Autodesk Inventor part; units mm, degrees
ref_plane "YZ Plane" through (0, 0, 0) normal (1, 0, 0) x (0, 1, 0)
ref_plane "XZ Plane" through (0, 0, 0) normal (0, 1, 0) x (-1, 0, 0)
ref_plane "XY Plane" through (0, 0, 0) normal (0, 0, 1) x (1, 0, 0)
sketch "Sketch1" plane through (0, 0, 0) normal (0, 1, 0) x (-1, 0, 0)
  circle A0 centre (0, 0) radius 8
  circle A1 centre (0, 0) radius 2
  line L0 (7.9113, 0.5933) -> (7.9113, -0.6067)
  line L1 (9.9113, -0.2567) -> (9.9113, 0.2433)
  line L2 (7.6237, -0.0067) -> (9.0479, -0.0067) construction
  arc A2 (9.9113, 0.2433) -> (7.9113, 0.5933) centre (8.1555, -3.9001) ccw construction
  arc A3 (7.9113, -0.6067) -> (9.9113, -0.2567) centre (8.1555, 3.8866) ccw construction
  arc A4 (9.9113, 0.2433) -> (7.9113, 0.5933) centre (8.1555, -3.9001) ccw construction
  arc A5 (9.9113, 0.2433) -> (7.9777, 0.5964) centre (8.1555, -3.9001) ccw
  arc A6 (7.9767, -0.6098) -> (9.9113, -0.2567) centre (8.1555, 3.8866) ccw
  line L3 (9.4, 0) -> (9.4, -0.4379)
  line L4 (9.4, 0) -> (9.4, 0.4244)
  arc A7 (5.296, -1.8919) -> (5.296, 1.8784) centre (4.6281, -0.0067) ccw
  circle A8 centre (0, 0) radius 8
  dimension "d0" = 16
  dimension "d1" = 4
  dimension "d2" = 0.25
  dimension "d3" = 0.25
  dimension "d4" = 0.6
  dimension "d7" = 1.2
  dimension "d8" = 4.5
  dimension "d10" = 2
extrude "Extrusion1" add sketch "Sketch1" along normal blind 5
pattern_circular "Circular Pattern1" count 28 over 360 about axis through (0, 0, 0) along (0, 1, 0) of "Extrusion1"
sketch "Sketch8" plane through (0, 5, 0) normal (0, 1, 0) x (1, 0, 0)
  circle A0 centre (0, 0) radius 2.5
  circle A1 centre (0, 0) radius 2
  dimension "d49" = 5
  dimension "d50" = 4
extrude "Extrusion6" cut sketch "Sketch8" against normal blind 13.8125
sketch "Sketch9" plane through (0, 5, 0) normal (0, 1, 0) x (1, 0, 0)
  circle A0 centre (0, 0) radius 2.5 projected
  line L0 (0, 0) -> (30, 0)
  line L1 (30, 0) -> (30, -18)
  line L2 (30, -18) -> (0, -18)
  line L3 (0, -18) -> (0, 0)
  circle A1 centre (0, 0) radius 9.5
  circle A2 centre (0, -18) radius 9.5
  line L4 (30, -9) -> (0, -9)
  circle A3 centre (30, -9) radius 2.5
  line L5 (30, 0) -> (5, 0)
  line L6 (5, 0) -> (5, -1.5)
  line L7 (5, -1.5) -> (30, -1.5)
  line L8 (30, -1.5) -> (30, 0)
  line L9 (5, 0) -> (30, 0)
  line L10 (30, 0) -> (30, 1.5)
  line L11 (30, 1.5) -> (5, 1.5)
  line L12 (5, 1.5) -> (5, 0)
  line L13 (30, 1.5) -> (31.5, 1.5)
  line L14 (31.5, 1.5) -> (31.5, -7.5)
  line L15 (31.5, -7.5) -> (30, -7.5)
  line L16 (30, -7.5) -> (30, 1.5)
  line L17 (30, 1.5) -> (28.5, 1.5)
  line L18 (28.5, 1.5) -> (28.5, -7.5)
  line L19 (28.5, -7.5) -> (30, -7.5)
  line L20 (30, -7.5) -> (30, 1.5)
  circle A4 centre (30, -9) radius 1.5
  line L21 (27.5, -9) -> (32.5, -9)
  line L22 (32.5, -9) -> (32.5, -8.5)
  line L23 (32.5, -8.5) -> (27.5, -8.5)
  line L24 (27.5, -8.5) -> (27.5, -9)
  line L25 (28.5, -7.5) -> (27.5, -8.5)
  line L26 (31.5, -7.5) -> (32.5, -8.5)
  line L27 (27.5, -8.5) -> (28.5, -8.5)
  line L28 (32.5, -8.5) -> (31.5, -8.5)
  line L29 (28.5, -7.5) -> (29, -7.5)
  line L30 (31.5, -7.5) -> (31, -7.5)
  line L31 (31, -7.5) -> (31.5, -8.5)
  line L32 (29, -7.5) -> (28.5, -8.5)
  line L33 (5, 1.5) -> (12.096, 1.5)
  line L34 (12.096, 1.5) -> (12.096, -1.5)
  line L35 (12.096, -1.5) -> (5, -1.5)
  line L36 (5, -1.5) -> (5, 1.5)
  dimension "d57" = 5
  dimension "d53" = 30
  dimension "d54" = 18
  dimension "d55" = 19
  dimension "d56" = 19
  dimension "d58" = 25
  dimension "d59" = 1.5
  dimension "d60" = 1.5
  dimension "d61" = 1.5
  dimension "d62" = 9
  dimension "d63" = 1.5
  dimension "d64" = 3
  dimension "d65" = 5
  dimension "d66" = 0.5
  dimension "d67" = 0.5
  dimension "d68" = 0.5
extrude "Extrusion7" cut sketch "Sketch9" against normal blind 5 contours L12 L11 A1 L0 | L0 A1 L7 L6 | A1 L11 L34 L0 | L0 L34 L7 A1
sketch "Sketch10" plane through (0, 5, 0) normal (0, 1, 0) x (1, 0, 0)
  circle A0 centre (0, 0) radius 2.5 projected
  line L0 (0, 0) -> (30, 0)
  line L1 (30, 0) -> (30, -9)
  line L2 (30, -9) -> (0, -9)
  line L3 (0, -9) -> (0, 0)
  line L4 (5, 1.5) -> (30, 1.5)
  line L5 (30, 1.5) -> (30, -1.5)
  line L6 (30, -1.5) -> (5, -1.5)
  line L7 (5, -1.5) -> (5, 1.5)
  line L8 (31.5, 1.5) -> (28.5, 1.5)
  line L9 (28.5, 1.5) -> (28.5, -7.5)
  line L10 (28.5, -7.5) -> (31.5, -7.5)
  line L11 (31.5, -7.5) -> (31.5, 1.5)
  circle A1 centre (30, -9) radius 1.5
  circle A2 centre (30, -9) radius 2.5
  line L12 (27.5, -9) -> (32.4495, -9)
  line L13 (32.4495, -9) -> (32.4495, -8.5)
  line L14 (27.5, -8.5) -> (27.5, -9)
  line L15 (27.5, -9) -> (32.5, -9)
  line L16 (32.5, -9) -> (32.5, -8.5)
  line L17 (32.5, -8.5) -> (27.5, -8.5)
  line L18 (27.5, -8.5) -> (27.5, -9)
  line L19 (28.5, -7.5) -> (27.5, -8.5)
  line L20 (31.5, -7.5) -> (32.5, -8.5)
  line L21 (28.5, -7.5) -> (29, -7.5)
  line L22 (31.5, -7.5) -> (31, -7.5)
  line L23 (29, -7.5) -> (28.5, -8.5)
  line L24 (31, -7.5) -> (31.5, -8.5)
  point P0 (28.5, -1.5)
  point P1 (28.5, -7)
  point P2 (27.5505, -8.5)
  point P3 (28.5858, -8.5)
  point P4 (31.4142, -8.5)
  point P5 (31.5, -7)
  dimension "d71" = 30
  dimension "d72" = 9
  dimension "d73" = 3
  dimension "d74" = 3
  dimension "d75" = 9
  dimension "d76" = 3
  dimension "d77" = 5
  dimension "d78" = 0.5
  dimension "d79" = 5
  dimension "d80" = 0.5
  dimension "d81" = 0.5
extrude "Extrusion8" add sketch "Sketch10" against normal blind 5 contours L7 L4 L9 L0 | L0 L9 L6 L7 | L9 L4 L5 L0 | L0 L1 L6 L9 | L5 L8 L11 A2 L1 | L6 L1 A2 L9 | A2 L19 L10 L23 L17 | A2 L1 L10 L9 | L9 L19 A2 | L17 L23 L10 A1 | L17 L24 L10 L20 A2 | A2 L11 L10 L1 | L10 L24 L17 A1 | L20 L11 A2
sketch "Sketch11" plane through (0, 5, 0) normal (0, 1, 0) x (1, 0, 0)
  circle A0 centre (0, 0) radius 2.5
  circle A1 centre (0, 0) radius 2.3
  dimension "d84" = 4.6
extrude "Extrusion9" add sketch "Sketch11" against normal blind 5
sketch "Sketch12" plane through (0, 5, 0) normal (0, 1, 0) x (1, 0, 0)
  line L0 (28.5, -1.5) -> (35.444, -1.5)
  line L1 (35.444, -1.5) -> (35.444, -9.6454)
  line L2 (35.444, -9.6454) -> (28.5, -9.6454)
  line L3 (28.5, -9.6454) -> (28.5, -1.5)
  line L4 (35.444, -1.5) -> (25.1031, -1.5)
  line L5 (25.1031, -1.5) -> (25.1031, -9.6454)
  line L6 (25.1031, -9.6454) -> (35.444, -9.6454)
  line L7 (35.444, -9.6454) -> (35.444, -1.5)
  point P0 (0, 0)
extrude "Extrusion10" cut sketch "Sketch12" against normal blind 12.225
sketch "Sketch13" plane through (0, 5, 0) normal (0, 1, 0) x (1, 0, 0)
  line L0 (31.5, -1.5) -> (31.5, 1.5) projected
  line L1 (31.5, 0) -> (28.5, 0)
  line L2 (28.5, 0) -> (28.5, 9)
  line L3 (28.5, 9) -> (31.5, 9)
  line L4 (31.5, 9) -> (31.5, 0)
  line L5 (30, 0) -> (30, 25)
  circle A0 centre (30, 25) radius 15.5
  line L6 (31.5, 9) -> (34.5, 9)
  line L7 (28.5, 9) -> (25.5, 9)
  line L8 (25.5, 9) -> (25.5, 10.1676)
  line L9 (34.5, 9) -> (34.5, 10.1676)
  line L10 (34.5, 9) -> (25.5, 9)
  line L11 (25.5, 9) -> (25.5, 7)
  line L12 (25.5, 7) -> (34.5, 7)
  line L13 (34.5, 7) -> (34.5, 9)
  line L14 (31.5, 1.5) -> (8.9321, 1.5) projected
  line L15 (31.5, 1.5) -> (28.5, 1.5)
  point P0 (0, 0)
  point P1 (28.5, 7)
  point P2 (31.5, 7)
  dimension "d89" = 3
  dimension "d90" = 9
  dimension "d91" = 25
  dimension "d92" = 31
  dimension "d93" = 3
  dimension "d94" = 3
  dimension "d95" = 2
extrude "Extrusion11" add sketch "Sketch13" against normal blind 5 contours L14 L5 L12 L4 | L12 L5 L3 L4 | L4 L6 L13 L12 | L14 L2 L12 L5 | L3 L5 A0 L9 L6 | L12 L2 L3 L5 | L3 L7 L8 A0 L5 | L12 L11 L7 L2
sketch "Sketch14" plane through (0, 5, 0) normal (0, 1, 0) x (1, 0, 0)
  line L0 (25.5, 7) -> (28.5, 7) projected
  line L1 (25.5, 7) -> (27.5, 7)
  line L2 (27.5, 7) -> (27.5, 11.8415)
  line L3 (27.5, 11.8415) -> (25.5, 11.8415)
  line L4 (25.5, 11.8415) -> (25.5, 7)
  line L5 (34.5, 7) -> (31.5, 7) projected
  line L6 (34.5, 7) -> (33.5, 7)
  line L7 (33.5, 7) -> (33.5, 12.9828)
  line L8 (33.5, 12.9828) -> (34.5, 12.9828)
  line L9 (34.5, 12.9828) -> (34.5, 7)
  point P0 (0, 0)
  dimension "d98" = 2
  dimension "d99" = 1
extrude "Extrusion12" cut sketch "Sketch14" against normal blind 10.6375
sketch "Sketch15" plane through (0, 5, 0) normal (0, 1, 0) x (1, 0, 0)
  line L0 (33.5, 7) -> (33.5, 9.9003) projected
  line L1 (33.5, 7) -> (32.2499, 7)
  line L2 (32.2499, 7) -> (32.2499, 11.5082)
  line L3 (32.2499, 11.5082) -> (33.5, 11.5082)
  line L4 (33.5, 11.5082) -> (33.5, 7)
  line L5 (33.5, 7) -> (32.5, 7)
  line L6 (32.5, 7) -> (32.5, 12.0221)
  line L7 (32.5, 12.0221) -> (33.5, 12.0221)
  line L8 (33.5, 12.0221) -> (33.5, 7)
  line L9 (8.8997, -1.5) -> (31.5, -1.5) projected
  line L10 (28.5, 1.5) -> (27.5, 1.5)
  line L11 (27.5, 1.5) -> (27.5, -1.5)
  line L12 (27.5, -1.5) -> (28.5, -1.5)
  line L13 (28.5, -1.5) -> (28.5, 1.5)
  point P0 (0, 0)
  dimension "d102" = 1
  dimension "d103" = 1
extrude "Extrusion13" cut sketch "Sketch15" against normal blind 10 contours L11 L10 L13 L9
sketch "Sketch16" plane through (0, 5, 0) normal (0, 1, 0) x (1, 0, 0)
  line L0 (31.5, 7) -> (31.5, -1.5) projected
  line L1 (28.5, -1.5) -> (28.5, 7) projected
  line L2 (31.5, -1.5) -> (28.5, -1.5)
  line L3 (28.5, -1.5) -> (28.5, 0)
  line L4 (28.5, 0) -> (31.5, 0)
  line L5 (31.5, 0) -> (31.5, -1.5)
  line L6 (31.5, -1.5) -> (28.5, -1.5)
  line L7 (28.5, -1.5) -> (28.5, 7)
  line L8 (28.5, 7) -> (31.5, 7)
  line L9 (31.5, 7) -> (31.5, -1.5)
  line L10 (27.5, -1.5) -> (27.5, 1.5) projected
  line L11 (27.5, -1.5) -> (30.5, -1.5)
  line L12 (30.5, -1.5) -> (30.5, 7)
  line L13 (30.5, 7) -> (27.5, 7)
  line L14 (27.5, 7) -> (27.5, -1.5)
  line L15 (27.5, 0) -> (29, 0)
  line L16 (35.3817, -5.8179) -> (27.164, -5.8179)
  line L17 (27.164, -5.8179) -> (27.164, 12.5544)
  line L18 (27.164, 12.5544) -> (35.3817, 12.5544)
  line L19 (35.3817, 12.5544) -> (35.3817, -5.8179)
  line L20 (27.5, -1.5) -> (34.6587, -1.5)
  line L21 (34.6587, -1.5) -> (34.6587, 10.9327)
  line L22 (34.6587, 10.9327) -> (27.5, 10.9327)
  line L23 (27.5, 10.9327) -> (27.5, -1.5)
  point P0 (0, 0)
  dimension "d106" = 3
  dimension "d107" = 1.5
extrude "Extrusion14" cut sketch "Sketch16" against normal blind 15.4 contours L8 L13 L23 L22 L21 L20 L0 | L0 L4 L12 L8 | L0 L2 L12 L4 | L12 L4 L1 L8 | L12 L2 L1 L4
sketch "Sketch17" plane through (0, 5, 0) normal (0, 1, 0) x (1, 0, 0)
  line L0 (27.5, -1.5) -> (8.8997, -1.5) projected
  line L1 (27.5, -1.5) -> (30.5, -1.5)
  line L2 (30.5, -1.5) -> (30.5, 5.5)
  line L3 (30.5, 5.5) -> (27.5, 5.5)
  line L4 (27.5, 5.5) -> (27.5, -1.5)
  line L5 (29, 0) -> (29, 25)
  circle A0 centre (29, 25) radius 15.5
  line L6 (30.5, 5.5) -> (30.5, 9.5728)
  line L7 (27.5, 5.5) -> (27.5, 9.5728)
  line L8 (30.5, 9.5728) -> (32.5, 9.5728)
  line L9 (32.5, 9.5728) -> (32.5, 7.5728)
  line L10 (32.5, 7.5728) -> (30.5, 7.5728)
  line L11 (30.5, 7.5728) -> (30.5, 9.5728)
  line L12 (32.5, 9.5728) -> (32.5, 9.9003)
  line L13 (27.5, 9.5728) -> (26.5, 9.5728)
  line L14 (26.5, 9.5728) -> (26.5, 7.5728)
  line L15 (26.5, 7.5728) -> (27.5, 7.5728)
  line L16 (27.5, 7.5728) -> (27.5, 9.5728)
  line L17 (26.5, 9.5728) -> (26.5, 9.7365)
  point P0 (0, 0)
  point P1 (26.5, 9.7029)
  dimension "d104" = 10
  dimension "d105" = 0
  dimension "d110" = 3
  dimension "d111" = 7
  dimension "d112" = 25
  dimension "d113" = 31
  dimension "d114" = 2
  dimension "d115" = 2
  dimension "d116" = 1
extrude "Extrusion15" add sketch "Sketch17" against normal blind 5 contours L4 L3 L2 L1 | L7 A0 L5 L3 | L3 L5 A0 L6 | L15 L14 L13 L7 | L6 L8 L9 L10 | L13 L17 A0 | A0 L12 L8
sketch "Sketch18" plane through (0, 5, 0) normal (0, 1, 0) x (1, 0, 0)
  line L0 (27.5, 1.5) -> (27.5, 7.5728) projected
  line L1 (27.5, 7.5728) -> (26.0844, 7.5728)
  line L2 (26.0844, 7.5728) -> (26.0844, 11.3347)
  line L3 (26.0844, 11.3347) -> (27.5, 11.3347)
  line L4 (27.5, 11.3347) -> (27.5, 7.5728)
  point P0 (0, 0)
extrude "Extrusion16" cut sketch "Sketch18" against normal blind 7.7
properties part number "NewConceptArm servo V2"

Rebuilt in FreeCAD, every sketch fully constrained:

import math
import FreeCAD as App
import Part
import Sketcher
from FreeCAD import Vector


def add_polygon(sketch, points):
    """Adds a closed chain of lines whose ends are joined by coincident constraints."""
    first, n = sketch.GeometryCount, len(points)
    for a, b in zip(points, points[1:] + points[:1]):
        sketch.addGeometry(Part.LineSegment(App.Vector(*a, 0), App.Vector(*b, 0)), False)
    for i in range(n):
        sketch.addConstraint(Sketcher.Constraint("Coincident", first + i, 2, first + (i + 1) % n, 1))

doc = App.newDocument("Part")
body = doc.addObject("PartDesign::Body", "Body")
body.AllowCompound = True

sketch1 = body.newObject("Sketcher::SketchObject", "Sketch")
sketch1.AttachmentSupport = (doc.getObject("XZ_Plane"), [""])
sketch1.MapMode = "FlatFace"
sketch1.addGeometry([
    Part.ArcOfCircle(Part.Circle(Vector(0, 0, 0), Vector(0, 0, 1), 8), math.radians(-176), math.radians(176)),
    Part.ArcOfCircle(Part.Circle(Vector(-8.2, 3.9, 0), Vector(0, 0, 1), 4.5), math.radians(-113), math.radians(-88)),
    Part.LineSegment(Vector(-9.9, -0.3, 0), Vector(-9.9, 0.2, 0)),
    Part.ArcOfCircle(Part.Circle(Vector(-8.2, -3.9, 0), Vector(0, 0, 1), 4.5), math.radians(88), math.radians(113)),
    Part.Circle(Vector(0, 0, 0), Vector(0, 0, 1), 2),
], False)
sketch1.addConstraint([
    Sketcher.Constraint("Coincident", 0, 1, 1, 2),
    Sketcher.Constraint("Coincident", 1, 1, 2, 1),
    Sketcher.Constraint("Coincident", 2, 2, 3, 2),
    Sketcher.Constraint("Coincident", 3, 1, 0, 2),
    Sketcher.Constraint("Vertical", 2),
    Sketcher.Constraint("Coincident", 0, 3, -1, 1),
    Sketcher.Constraint("Coincident", 4, 3, -1, 1),
    Sketcher.Constraint("Diameter", 4, 4.0),
    Sketcher.Constraint("Radius", 0, 8.0),
    Sketcher.Constraint("Radius", 1, 4.5),
    Sketcher.Constraint("DistanceY", 2, 1, 2, 2, 0.5),
    Sketcher.Constraint("Radius", 3, 4.499),
    Sketcher.Constraint("DistanceY", 3, 3, -1, 1, 3.899),
    Sketcher.Constraint("DistanceX", 3, 3, 0, 1, 0.179),
    Sketcher.Constraint("DistanceY", 0, 1, 2, 2, 0.853),
    Sketcher.Constraint("DistanceX", 3, 1, 0, 1, 0.001),
])
pad1 = body.newObject("PartDesign::Pad", "Pad")
pad1.Profile = sketch1
pad1.Length = 5
pad1.Reversed = True
doc.recompute()

polarpattern = body.newObject("PartDesign::PolarPattern", "PolarPattern")
polarpattern.Originals = [pad1]
polarpattern.Axis = (doc.getObject("Y_Axis"), [""])
polarpattern.Angle = 360
polarpattern.Occurrences = 28
body.Tip = polarpattern

sketch2 = body.newObject("Sketcher::SketchObject", "Sketch001")
sketch2.AttachmentSupport = (doc.getObject("XZ_Plane"), [""])
sketch2.MapMode = "FlatFace"
sketch2.AttachmentOffset = App.Placement(Vector(0, 0, -5), App.Rotation())
sketch2.addGeometry([
    Part.Circle(Vector(0, 0, 0), Vector(0, 0, 1), 2.5),
    Part.Circle(Vector(0, 0, 0), Vector(0, 0, 1), 2),
], False)
sketch2.addConstraint([
    Sketcher.Constraint("Coincident", 0, 3, -1, 1),
    Sketcher.Constraint("Coincident", 1, 3, -1, 1),
    Sketcher.Constraint("Diameter", 0, 5.0),
    Sketcher.Constraint("Diameter", 1, 4.0),
])
pocket1 = body.newObject("PartDesign::Pocket", "Pocket")
pocket1.Profile = sketch2
pocket1.Length = 13.8125
pocket1.Reversed = True

sketch3 = body.newObject("Sketcher::SketchObject", "Sketch002")
sketch3.AttachmentSupport = (doc.getObject("XZ_Plane"), [""])
sketch3.MapMode = "FlatFace"
sketch3.AttachmentOffset = App.Placement(Vector(0, 0, -5), App.Rotation())
add_polygon(sketch3, [(5, -1.5), (5, 1.5), (12.1, 1.5), (12.1, -1.5)])
sketch3.addConstraint([
    Sketcher.Constraint("Vertical", 0),
    Sketcher.Constraint("Horizontal", 1),
    Sketcher.Constraint("Vertical", 2),
    Sketcher.Constraint("Horizontal", 3),
    Sketcher.Constraint("DistanceY", 0, 1, 0, 2, 3.0),
    Sketcher.Constraint("DistanceX", -1, 1, 0, 2, 5.0),
    Sketcher.Constraint("DistanceY", -1, 1, 0, 2, 1.5),
    Sketcher.Constraint("DistanceX", 1, 1, 1, 2, 7.096),
])
pocket2 = body.newObject("PartDesign::Pocket", "Pocket001")
pocket2.Profile = sketch3
pocket2.Length = 5
pocket2.Reversed = True

sketch4 = body.newObject("Sketcher::SketchObject", "Sketch003")
sketch4.AttachmentSupport = (doc.getObject("XZ_Plane"), [""])
sketch4.MapMode = "FlatFace"
sketch4.AttachmentOffset = App.Placement(Vector(0, 0, -5), App.Rotation())
sketch4.addGeometry([
    Part.LineSegment(Vector(5, -1.5, 0), Vector(5, 1.5, 0)),
    Part.LineSegment(Vector(5, 1.5, 0), Vector(28.5, 1.5, 0)),
    Part.LineSegment(Vector(28.5, 1.5, 0), Vector(28.5, 7, 0)),
    Part.ArcOfCircle(Part.Circle(Vector(30, 9, 0), Vector(0, 0, 1), 2.5), math.radians(-168), math.radians(-127)),
    Part.LineSegment(Vector(27.6, 8.5, 0), Vector(28.6, 8.5, 0)),
    Part.ArcOfCircle(Part.Circle(Vector(30, 9, 0), Vector(0, 0, 1), 1.5), math.radians(-161), math.radians(-19)),
    Part.LineSegment(Vector(31.4, 8.5, 0), Vector(32.4, 8.5, 0)),
    Part.ArcOfCircle(Part.Circle(Vector(30, 9, 0), Vector(0, 0, 1), 2.5), math.radians(-53), math.radians(-12)),
    Part.LineSegment(Vector(31.5, 7, 0), Vector(31.5, -1.5, 0)),
    Part.LineSegment(Vector(31.5, -1.5, 0), Vector(5, -1.5, 0)),
], False)
sketch4.addConstraint([
    Sketcher.Constraint("Coincident", 0, 2, 1, 1),
    Sketcher.Constraint("Coincident", 1, 2, 2, 1),
    Sketcher.Constraint("Coincident", 2, 2, 3, 2),
    Sketcher.Constraint("Coincident", 3, 1, 4, 1),
    Sketcher.Constraint("Coincident", 4, 2, 5, 1),
    Sketcher.Constraint("Coincident", 5, 2, 6, 1),
    Sketcher.Constraint("Coincident", 6, 2, 7, 2),
    Sketcher.Constraint("Coincident", 7, 1, 8, 1),
    Sketcher.Constraint("Coincident", 8, 2, 9, 1),
    Sketcher.Constraint("Coincident", 9, 2, 0, 1),
    Sketcher.Constraint("Vertical", 0),
    Sketcher.Constraint("Horizontal", 1),
    Sketcher.Constraint("Vertical", 2),
    Sketcher.Constraint("Horizontal", 4),
    Sketcher.Constraint("Horizontal", 6),
    Sketcher.Constraint("Vertical", 8),
    Sketcher.Constraint("Horizontal", 9),
    Sketcher.Constraint("Coincident", 5, 3, 3, 3),
    Sketcher.Constraint("Coincident", 7, 3, 3, 3),
    Sketcher.Constraint("Equal", 3, 7),
    Sketcher.Constraint("Horizontal", 4, 2, 5, 2),
    Sketcher.Constraint("Horizontal", 2, 2, 7, 1),
    Sketcher.Constraint("Radius", 3, 2.5),
    Sketcher.Constraint("Radius", 5, 1.5),
    Sketcher.Constraint("DistanceY", 0, 1, 0, 2, 3.0),
    Sketcher.Constraint("DistanceX", -1, 1, 3, 3, 30.0),
    Sketcher.Constraint("DistanceY", -1, 1, 3, 3, 9.0),
    Sketcher.Constraint("DistanceX", -1, 1, 0, 2, 5.0),
    Sketcher.Constraint("DistanceX", 1, 2, 8, 2, 3.0),
    Sketcher.Constraint("DistanceY", 3, 1, 3, 3, 0.5),
    Sketcher.Constraint("DistanceY", 2, 1, 2, 2, 5.5),
])
pad2 = body.newObject("PartDesign::Pad", "Pad001")
pad2.Profile = sketch4
pad2.Length = 5

sketch5 = body.newObject("Sketcher::SketchObject", "Sketch004")
sketch5.AttachmentSupport = (doc.getObject("XZ_Plane"), [""])
sketch5.MapMode = "FlatFace"
sketch5.AttachmentOffset = App.Placement(Vector(0, 0, -5), App.Rotation())
sketch5.addGeometry([
    Part.Circle(Vector(0, 0, 0), Vector(0, 0, 1), 2.5),
    Part.Circle(Vector(0, 0, 0), Vector(0, 0, 1), 2.3),
], False)
sketch5.addConstraint([
    Sketcher.Constraint("Coincident", 0, 3, -1, 1),
    Sketcher.Constraint("Coincident", 1, 3, -1, 1),
    Sketcher.Constraint("Diameter", 1, 4.6),
    Sketcher.Constraint("Diameter", 0, 5.0),
])
pad3 = body.newObject("PartDesign::Pad", "Pad002")
pad3.Profile = sketch5
pad3.Length = 5

sketch6 = body.newObject("Sketcher::SketchObject", "Sketch005")
sketch6.AttachmentSupport = (doc.getObject("XZ_Plane"), [""])
sketch6.MapMode = "FlatFace"
sketch6.AttachmentOffset = App.Placement(Vector(0, 0, -5), App.Rotation())
add_polygon(sketch6, [(35, 2), (25, 2), (25, 10), (35, 10)])
sketch6.addConstraint([
    Sketcher.Constraint("Horizontal", 0),
    Sketcher.Constraint("Vertical", 1),
    Sketcher.Constraint("Horizontal", 2),
    Sketcher.Constraint("Vertical", 3),
    Sketcher.Constraint("DistanceY", -1, 1, 0, 2, 1.5),
    Sketcher.Constraint("DistanceX", 0, 2, 0, 1, 10.341),
    Sketcher.Constraint("DistanceY", 1, 1, 1, 2, 8.1454),
    Sketcher.Constraint("DistanceX", -1, 1, 0, 2, 25.103),
])
pocket3 = body.newObject("PartDesign::Pocket", "Pocket002")
pocket3.Profile = sketch6
pocket3.Length = 12.225
pocket3.Reversed = True

sketch7 = body.newObject("Sketcher::SketchObject", "Sketch006")
sketch7.AttachmentSupport = (doc.getObject("XZ_Plane"), [""])
sketch7.MapMode = "FlatFace"
sketch7.AttachmentOffset = App.Placement(Vector(0, 0, -5), App.Rotation())
sketch7.addGeometry([
    Part.LineSegment(Vector(31.5, -1.5, 0), Vector(31.5, -7, 0)),
    Part.LineSegment(Vector(31.5, -7, 0), Vector(34.5, -7, 0)),
    Part.LineSegment(Vector(34.5, -7, 0), Vector(34.5, -10.2, 0)),
    Part.ArcOfCircle(Part.Circle(Vector(30, -25, 0), Vector(0, 0, 1), 15.5), math.radians(73), math.radians(107)),
    Part.LineSegment(Vector(25.5, -10.2, 0), Vector(25.5, -7, 0)),
    Part.LineSegment(Vector(25.5, -7, 0), Vector(28.5, -7, 0)),
    Part.LineSegment(Vector(28.5, -7, 0), Vector(28.5, -1.5, 0)),
    Part.LineSegment(Vector(28.5, -1.5, 0), Vector(31.5, -1.5, 0)),
], False)
sketch7.addConstraint([
    Sketcher.Constraint("Coincident", 0, 2, 1, 1),
    Sketcher.Constraint("Coincident", 1, 2, 2, 1),
    Sketcher.Constraint("Coincident", 2, 2, 3, 1),
    Sketcher.Constraint("Coincident", 3, 2, 4, 1),
    Sketcher.Constraint("Coincident", 4, 2, 5, 1),
    Sketcher.Constraint("Coincident", 5, 2, 6, 1),
    Sketcher.Constraint("Coincident", 6, 2, 7, 1),
    Sketcher.Constraint("Coincident", 7, 2, 0, 1),
    Sketcher.Constraint("Vertical", 0),
    Sketcher.Constraint("Horizontal", 1),
    Sketcher.Constraint("Vertical", 2),
    Sketcher.Constraint("Vertical", 4),
    Sketcher.Constraint("Horizontal", 5),
    Sketcher.Constraint("Vertical", 6),
    Sketcher.Constraint("Horizontal", 7),
    Sketcher.Constraint("Horizontal", 2, 2, 3, 2),
    Sketcher.Constraint("Horizontal", 1, 2, 4, 2),
    Sketcher.Constraint("Equal", 1, 5),
    Sketcher.Constraint("Equal", 5, 7),
    Sketcher.Constraint("Radius", 3, 15.5),
    Sketcher.Constraint("DistanceX", 1, 1, 1, 2, 3.0),
    Sketcher.Constraint("DistanceY", 3, 3, -1, 1, 25.0),
    Sketcher.Constraint("DistanceY", 0, 2, 0, 1, 5.5),
    Sketcher.Constraint("DistanceX", -1, 1, 3, 3, 30.0),
    Sketcher.Constraint("DistanceY", 0, 2, -1, 1, 7.0),
])
pad4 = body.newObject("PartDesign::Pad", "Pad003")
pad4.Profile = sketch7
pad4.Length = 5

sketch8 = body.newObject("Sketcher::SketchObject", "Sketch007")
sketch8.AttachmentSupport = (doc.getObject("XZ_Plane"), [""])
sketch8.MapMode = "FlatFace"
sketch8.AttachmentOffset = App.Placement(Vector(0, 0, -5), App.Rotation())
add_polygon(sketch8, [(25.5, -11.8), (25.5, -7), (27.5, -7), (27.5, -11.8)])
add_polygon(sketch8, [(33.5, -7), (34.5, -7), (34.5, -13), (33.5, -13)])
sketch8.addConstraint([
    Sketcher.Constraint("Vertical", 0),
    Sketcher.Constraint("Horizontal", 1),
    Sketcher.Constraint("Vertical", 2),
    Sketcher.Constraint("Horizontal", 3),
    Sketcher.Constraint("Horizontal", 4),
    Sketcher.Constraint("Vertical", 5),
    Sketcher.Constraint("Horizontal", 6),
    Sketcher.Constraint("Vertical", 7),
    Sketcher.Constraint("Horizontal", 1, 2, 4, 2),
    Sketcher.Constraint("DistanceX", 1, 1, 1, 2, 2.0),
    Sketcher.Constraint("DistanceX", 4, 1, 4, 2, 1.0),
    Sketcher.Constraint("DistanceY", 0, 2, -1, 1, 7.0),
    Sketcher.Constraint("DistanceX", 1, 2, 4, 2, 7.0),
    Sketcher.Constraint("DistanceX", -1, 1, 0, 2, 25.5),
    Sketcher.Constraint("DistanceY", 0, 1, 0, 2, 4.8415),
    Sketcher.Constraint("DistanceY", 5, 2, 5, 1, 5.9828),
])
pocket4 = body.newObject("PartDesign::Pocket", "Pocket003")
pocket4.Profile = sketch8
pocket4.Length = 10.6375
pocket4.Reversed = True

sketch9 = body.newObject("Sketcher::SketchObject", "Sketch008")
sketch9.AttachmentSupport = (doc.getObject("XZ_Plane"), [""])
sketch9.MapMode = "FlatFace"
sketch9.AttachmentOffset = App.Placement(Vector(0, 0, -5), App.Rotation())
add_polygon(sketch9, [(27.5, -1.5), (27.5, 1.5), (28.5, 1.5), (28.5, -1.5)])
sketch9.addConstraint([
    Sketcher.Constraint("Vertical", 0),
    Sketcher.Constraint("Horizontal", 1),
    Sketcher.Constraint("Vertical", 2),
    Sketcher.Constraint("Horizontal", 3),
    Sketcher.Constraint("DistanceX", 1, 1, 1, 2, 1.0),
    Sketcher.Constraint("DistanceY", 0, 1, 0, 2, 3.0),
    Sketcher.Constraint("DistanceX", -1, 1, 0, 2, 27.5),
    Sketcher.Constraint("DistanceY", -1, 1, 0, 2, 1.5),
])
pocket5 = body.newObject("PartDesign::Pocket", "Pocket004")
pocket5.Profile = sketch9
pocket5.Length = 10
pocket5.Reversed = True

sketch10 = body.newObject("Sketcher::SketchObject", "Sketch009")
sketch10.AttachmentSupport = (doc.getObject("XZ_Plane"), [""])
sketch10.MapMode = "FlatFace"
sketch10.AttachmentOffset = App.Placement(Vector(0, 0, -5), App.Rotation())
add_polygon(sketch10, [(27.5, -7), (28.5, -7), (28.5, 1.5), (34.7, 1.5), (34.7, -10.9), (27.5, -10.9)])
sketch10.addConstraint([
    Sketcher.Constraint("Horizontal", 0),
    Sketcher.Constraint("Vertical", 1),
    Sketcher.Constraint("Horizontal", 2),
    Sketcher.Constraint("Vertical", 3),
    Sketcher.Constraint("Horizontal", 4),
    Sketcher.Constraint("Vertical", 5),
    Sketcher.Constraint("DistanceY", -1, 1, 1, 2, 1.5),
    Sketcher.Constraint("DistanceX", 0, 1, 0, 2, 1.0),
    Sketcher.Constraint("DistanceY", 1, 1, 1, 2, 8.5),
    Sketcher.Constraint("DistanceX", -1, 1, 0, 2, 28.5),
    Sketcher.Constraint("DistanceX", 2, 1, 2, 2, 6.1587),
    Sketcher.Constraint("DistanceY", 3, 2, 3, 1, 12.4327),
])
pocket6 = body.newObject("PartDesign::Pocket", "Pocket005")
pocket6.Profile = sketch10
pocket6.Length = 15.4
pocket6.Reversed = True

sketch11 = body.newObject("Sketcher::SketchObject", "Sketch010")
sketch11.AttachmentSupport = (doc.getObject("XZ_Plane"), [""])
sketch11.MapMode = "FlatFace"
sketch11.AttachmentOffset = App.Placement(Vector(0, 0, -5), App.Rotation())
sketch11.addGeometry([
    Part.LineSegment(Vector(27.5, 1.5, 0), Vector(30.5, 1.5, 0)),
    Part.LineSegment(Vector(30.5, 1.5, 0), Vector(30.5, -7.6, 0)),
    Part.LineSegment(Vector(30.5, -7.6, 0), Vector(32.5, -7.6, 0)),
    Part.LineSegment(Vector(32.5, -7.6, 0), Vector(32.5, -9.9, 0)),
    Part.ArcOfCircle(Part.Circle(Vector(29, -25, 0), Vector(0, 0, 1), 15.5), math.radians(77), math.radians(99)),
    Part.LineSegment(Vector(26.5, -9.7, 0), Vector(26.5, -7.6, 0)),
    Part.LineSegment(Vector(26.5, -7.6, 0), Vector(27.5, -7.6, 0)),
    Part.LineSegment(Vector(27.5, -7.6, 0), Vector(27.5, 1.5, 0)),
], False)
sketch11.addConstraint([
    Sketcher.Constraint("Coincident", 0, 2, 1, 1),
    Sketcher.Constraint("Coincident", 1, 2, 2, 1),
    Sketcher.Constraint("Coincident", 2, 2, 3, 1),
    Sketcher.Constraint("Coincident", 3, 2, 4, 1),
    Sketcher.Constraint("Coincident", 4, 2, 5, 1),
    Sketcher.Constraint("Coincident", 5, 2, 6, 1),
    Sketcher.Constraint("Coincident", 6, 2, 7, 1),
    Sketcher.Constraint("Coincident", 7, 2, 0, 1),
    Sketcher.Constraint("Horizontal", 0),
    Sketcher.Constraint("Vertical", 1),
    Sketcher.Constraint("Horizontal", 2),
    Sketcher.Constraint("Vertical", 3),
    Sketcher.Constraint("Vertical", 5),
    Sketcher.Constraint("Horizontal", 6),
    Sketcher.Constraint("Vertical", 7),
    Sketcher.Constraint("Horizontal", 2, 2, 5, 2),
    Sketcher.Constraint("Radius", 4, 15.5),
    Sketcher.Constraint("DistanceX", 0, 1, 0, 2, 3.0),
    Sketcher.Constraint("DistanceX", 2, 1, 2, 2, 2.0),
    Sketcher.Constraint("DistanceX", 6, 1, 6, 2, 1.0),
    Sketcher.Constraint("DistanceY", 4, 3, -1, 1, 25.0),
    Sketcher.Constraint("DistanceX", -1, 1, 4, 3, 29.0),
    Sketcher.Constraint("DistanceX", -1, 1, 0, 2, 30.5),
    Sketcher.Constraint("DistanceY", -1, 1, 0, 2, 1.5),
    Sketcher.Constraint("DistanceY", 1, 2, 1, 1, 9.0728),
])
pad5 = body.newObject("PartDesign::Pad", "Pad004")
pad5.Profile = sketch11
pad5.Length = 5

sketch12 = body.newObject("Sketcher::SketchObject", "Sketch011")
sketch12.AttachmentSupport = (doc.getObject("XZ_Plane"), [""])
sketch12.MapMode = "FlatFace"
sketch12.AttachmentOffset = App.Placement(Vector(0, 0, -5), App.Rotation())
add_polygon(sketch12, [(26.1, -7.6), (27.5, -7.6), (27.5, -11.3), (26.1, -11.3)])
sketch12.addConstraint([
    Sketcher.Constraint("Horizontal", 0),
    Sketcher.Constraint("Vertical", 1),
    Sketcher.Constraint("Horizontal", 2),
    Sketcher.Constraint("Vertical", 3),
    Sketcher.Constraint("DistanceX", -1, 1, 0, 2, 27.5),
    Sketcher.Constraint("DistanceY", 1, 2, 1, 1, 3.762),
    Sketcher.Constraint("DistanceX", 0, 1, 0, 2, 1.4156),
    Sketcher.Constraint("DistanceY", 0, 2, -1, 1, 7.5728),
])
pocket7 = body.newObject("PartDesign::Pocket", "Pocket006")
pocket7.Profile = sketch12
pocket7.Length = 7.7
pocket7.Reversed = True

doc.recompute()
